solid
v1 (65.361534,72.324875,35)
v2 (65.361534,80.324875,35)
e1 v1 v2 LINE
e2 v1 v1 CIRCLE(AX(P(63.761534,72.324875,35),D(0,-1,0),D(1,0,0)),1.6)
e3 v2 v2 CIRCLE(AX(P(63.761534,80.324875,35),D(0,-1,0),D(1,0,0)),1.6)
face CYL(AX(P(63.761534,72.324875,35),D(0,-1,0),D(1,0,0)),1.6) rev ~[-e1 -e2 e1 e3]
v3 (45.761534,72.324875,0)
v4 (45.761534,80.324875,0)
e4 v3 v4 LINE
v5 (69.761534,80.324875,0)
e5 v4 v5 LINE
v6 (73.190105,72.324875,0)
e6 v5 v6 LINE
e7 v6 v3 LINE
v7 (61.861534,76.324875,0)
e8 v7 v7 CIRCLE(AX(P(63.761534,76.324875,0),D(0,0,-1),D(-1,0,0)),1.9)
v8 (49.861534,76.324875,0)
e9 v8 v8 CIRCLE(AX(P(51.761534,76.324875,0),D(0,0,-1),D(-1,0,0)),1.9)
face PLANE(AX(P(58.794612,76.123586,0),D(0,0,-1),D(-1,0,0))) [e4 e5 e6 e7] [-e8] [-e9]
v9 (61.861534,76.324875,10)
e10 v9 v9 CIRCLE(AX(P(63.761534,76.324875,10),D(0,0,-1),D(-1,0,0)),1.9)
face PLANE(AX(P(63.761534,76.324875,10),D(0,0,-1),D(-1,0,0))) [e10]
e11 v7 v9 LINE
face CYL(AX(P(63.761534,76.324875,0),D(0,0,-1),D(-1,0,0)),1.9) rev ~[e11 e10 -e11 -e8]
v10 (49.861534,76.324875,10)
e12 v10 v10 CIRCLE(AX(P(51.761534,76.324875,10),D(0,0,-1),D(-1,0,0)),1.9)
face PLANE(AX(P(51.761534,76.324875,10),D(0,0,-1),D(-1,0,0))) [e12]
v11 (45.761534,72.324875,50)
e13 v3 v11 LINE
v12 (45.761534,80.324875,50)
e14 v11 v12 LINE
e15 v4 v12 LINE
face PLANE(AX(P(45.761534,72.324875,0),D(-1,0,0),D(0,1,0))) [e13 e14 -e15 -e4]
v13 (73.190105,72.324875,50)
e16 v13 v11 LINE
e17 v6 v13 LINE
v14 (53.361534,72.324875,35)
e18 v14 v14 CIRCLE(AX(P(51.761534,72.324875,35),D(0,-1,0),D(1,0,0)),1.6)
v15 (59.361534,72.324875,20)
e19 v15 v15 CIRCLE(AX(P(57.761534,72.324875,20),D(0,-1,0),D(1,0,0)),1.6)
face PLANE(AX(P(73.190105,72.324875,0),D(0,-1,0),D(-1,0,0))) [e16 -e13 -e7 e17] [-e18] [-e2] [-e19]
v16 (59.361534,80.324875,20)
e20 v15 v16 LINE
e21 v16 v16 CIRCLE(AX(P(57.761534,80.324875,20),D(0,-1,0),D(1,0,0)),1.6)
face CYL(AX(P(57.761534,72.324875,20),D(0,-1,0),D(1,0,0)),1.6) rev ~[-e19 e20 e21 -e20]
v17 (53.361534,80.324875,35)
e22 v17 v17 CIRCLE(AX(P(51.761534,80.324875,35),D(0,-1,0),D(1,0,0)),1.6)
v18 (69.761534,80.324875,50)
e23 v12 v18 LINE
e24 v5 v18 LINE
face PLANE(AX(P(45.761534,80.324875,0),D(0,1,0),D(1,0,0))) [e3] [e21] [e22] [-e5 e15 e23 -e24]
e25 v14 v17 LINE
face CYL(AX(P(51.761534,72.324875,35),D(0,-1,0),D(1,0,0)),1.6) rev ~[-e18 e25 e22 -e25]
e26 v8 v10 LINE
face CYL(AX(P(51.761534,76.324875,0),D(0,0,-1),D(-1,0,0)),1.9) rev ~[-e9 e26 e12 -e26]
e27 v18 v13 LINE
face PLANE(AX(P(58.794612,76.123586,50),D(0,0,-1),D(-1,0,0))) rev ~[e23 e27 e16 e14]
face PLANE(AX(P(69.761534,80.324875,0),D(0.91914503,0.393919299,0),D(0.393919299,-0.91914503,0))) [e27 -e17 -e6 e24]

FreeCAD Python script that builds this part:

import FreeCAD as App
import Part
import Sketcher
from FreeCAD import Vector


def add_polygon(sketch, points):
    """Adds a closed chain of lines whose ends are joined by coincident constraints."""
    first, n = sketch.GeometryCount, len(points)
    for a, b in zip(points, points[1:] + points[:1]):
        sketch.addGeometry(Part.LineSegment(App.Vector(*a, 0), App.Vector(*b, 0)), False)
    for i in range(n):
        sketch.addConstraint(Sketcher.Constraint("Coincident", first + i, 2, first + (i + 1) % n, 1))

doc = App.newDocument("Part")
params = doc.addObject("Spreadsheet::Sheet", "Params")
for row, (alias, value) in enumerate([
    ("sketch1_width", "24 mm"),
    ("sketch1_height", "8 mm"),
    ("pad1_length", "50 mm"),
    ("sketch2_diameter", "3.2 mm"),
    ("sketch3_diameter", "3.2 mm"),
    ("sketch4_diameter", "3.2 mm"),
    ("sketch5_diameter", "3.8 mm"),
    ("pocket4_length", "10 mm"),
], start=1):
    params.set(f"A{row}", alias)
    params.set(f"B{row}", "=" + value)
    params.setAlias(f"B{row}", alias)

body = doc.addObject("PartDesign::Body", "Body")

# Sketch on XY plane
sketch1 = body.newObject("Sketcher::SketchObject", "Sketch")
sketch1.AttachmentSupport = (doc.getObject("XY_Plane"), [""])
sketch1.MapMode = "FlatFace"
add_polygon(sketch1, [(69.761534, 80.324875), (45.761534, 80.324875), (45.761534, 72.324875), (73.190105, 72.324875)])  # lines 0-3
sketch1.addConstraint(Sketcher.Constraint("Horizontal", 0))
sketch1.addConstraint(Sketcher.Constraint("Vertical", 1))
sketch1.addConstraint(Sketcher.Constraint("Horizontal", 2))
sketch1.addConstraint(Sketcher.Constraint("DistanceX", 0, 2, 0, 1, 24.0))
sketch1.addConstraint(Sketcher.Constraint("DistanceY", 1, 2, 1, 1, 8.0))
sketch1.addConstraint(Sketcher.Constraint("DistanceX", 2, 1, 2, 2, 27.428571))
sketch1.addConstraint(Sketcher.Constraint("DistanceX", -1, 1, 0, 2, 45.761534))
sketch1.addConstraint(Sketcher.Constraint("DistanceY", -1, 1, 0, 2, 80.324875))
sketch1.setExpression("Constraints[7]", "Params.sketch1_width")
sketch1.setExpression("Constraints[8]", "Params.sketch1_height")
pad1 = body.newObject("PartDesign::Pad", "Pad")
pad1.Profile = sketch1
pad1.setExpression("Length", "Params.pad1_length")

# Sketch on XZ plane
sketch2 = body.newObject("Sketcher::SketchObject", "Sketch001")
sketch2.AttachmentSupport = (doc.getObject("XZ_Plane"), [""])
sketch2.MapMode = "FlatFace"
sketch2.AttachmentOffset = App.Placement(Vector(0, 0, -72.324875), App.Rotation())
sketch2.addGeometry(Part.Circle(Vector(63.761534, 35, 0), Vector(0, 0, 1), 1.6), False)
sketch2.addConstraint(Sketcher.Constraint("Diameter", 0, 3.2))
sketch2.addConstraint(Sketcher.Constraint("DistanceY", -1, 1, 0, 3, 35.0))
sketch2.addConstraint(Sketcher.Constraint("DistanceX", -1, 1, 0, 3, 63.761534))
sketch2.setExpression("Constraints[0]", "Params.sketch2_diameter")
pocket1 = body.newObject("PartDesign::Pocket", "Pocket")
pocket1.Profile = sketch2
pocket1.Type = "UpToFirst"

# Sketch on XZ plane
sketch3 = body.newObject("Sketcher::SketchObject", "Sketch002")
sketch3.AttachmentSupport = (doc.getObject("XZ_Plane"), [""])
sketch3.MapMode = "FlatFace"
sketch3.AttachmentOffset = App.Placement(Vector(0, 0, -72.324875), App.Rotation())
sketch3.addGeometry(Part.Circle(Vector(57.761534, 20, 0), Vector(0, 0, 1), 1.6), False)
sketch3.addConstraint(Sketcher.Constraint("Diameter", 0, 3.2))
sketch3.addConstraint(Sketcher.Constraint("DistanceY", -1, 1, 0, 3, 20.0))
sketch3.addConstraint(Sketcher.Constraint("DistanceX", -1, 1, 0, 3, 57.761534))
sketch3.setExpression("Constraints[0]", "Params.sketch3_diameter")
pocket2 = body.newObject("PartDesign::Pocket", "Pocket001")
pocket2.Profile = sketch3
pocket2.Type = "UpToFirst"

# Sketch on XZ plane
sketch4 = body.newObject("Sketcher::SketchObject", "Sketch003")
sketch4.AttachmentSupport = (doc.getObject("XZ_Plane"), [""])
sketch4.MapMode = "FlatFace"
sketch4.AttachmentOffset = App.Placement(Vector(0, 0, -72.324875), App.Rotation())
sketch4.addGeometry(Part.Circle(Vector(51.761534, 35, 0), Vector(0, 0, 1), 1.6), False)
sketch4.addConstraint(Sketcher.Constraint("Diameter", 0, 3.2))
sketch4.addConstraint(Sketcher.Constraint("DistanceY", -1, 1, 0, 3, 35.0))
sketch4.addConstraint(Sketcher.Constraint("DistanceX", -1, 1, 0, 3, 51.761534))
sketch4.setExpression("Constraints[0]", "Params.sketch4_diameter")
pocket3 = body.newObject("PartDesign::Pocket", "Pocket002")
pocket3.Profile = sketch4
pocket3.Type = "UpToFirst"

# Sketch on XY plane
sketch5 = body.newObject("Sketcher::SketchObject", "Sketch004")
sketch5.AttachmentSupport = (doc.getObject("XY_Plane"), [""])
sketch5.MapMode = "FlatFace"
sketch5.addGeometry(Part.Circle(Vector(63.761534, 76.324875, 0), Vector(0, 0, 1), 1.9), False)
sketch5.addGeometry(Part.Circle(Vector(51.761534, 76.324875, 0), Vector(0, 0, 1), 1.9), False)
sketch5.addConstraint(Sketcher.Constraint("Equal", 0, 1))
sketch5.addConstraint(Sketcher.Constraint("Horizontal", 0, 3, 1, 3))
sketch5.addConstraint(Sketcher.Constraint("Diameter", 0, 3.8))
sketch5.addConstraint(Sketcher.Constraint("DistanceX", 1, 3, 0, 3, 12.0))
sketch5.addConstraint(Sketcher.Constraint("DistanceX", -1, 1, 0, 3, 63.761534))
sketch5.addConstraint(Sketcher.Constraint("DistanceY", -1, 1, 0, 3, 76.324875))
sketch5.setExpression("Constraints[2]", "Params.sketch5_diameter")
pocket4 = body.newObject("PartDesign::Pocket", "Pocket003")
pocket4.Profile = sketch5
pocket4.setExpression("Length", "Params.pocket4_length")
pocket4.Reversed = True

doc.recompute()
